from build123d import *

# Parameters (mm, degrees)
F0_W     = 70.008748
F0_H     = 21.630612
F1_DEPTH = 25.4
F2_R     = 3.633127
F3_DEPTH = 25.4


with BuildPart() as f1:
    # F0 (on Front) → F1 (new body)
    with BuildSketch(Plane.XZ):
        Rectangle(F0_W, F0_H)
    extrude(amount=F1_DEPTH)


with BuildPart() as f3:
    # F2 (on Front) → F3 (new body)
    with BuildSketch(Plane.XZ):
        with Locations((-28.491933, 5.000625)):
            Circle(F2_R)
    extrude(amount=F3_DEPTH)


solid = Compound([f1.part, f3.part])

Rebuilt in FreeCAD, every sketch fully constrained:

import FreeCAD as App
import Part
import Sketcher
Q = App.Units.Quantity


def add_polygon(sketch, points):
    """Adds a closed chain of lines whose ends are joined by coincident constraints."""
    first, n = sketch.GeometryCount, len(points)
    for a, b in zip(points, points[1:] + points[:1]):
        sketch.addGeometry(Part.LineSegment(App.Vector(*a, 0), App.Vector(*b, 0)), False)
    for i in range(n):
        sketch.addConstraint(Sketcher.Constraint("Coincident", first + i, 2, first + (i + 1) % n, 1))

doc = App.newDocument("Part")
body = doc.addObject("PartDesign::Body", "Body")

# Sketch on XZ plane
sketch1 = doc.addObject("Sketcher::SketchObject", "Sketch")
body.addObject(sketch1)
sketch1.AttachmentSupport = (doc.XZ_Plane, [""])
sketch1.MapMode = "FlatFace"
add_polygon(sketch1, [(-35, 11), (-35, -11), (35, -11), (35, 11)])  # lines 0-3
sketch1.addConstraint([
    Sketcher.Constraint("Vertical", 0),
    Sketcher.Constraint("Horizontal", 1),
    Sketcher.Constraint("Vertical", 2),
    Sketcher.Constraint("Horizontal", 3),
    Sketcher.Constraint("Symmetric", 0, 2, 2, 2, -1, 1),
    Sketcher.Constraint("DistanceY", 0, 2, 0, 1, 21.630612),
    Sketcher.Constraint("DistanceX", 1, 1, 1, 2, 70.008748),
])
pad1 = doc.addObject("PartDesign::Pad", "Pad")
body.addObject(pad1)
pad1.Profile = sketch1
pad1.Length = Q("1 in")
body2 = doc.addObject("PartDesign::Body", "Body001")

# Sketch on XZ plane
sketch2 = doc.addObject("Sketcher::SketchObject", "Sketch001")
body2.addObject(sketch2)
sketch2.AttachmentSupport = (doc.getObject("XZ_Plane001"), [""])
sketch2.MapMode = "FlatFace"
sketch2.addGeometry(Part.Circle(App.Vector(-28.5, 5, 0), App.Vector(0, 0, 1), 3.6), False)
sketch2.addConstraint([
    Sketcher.Constraint("Diameter", 0, 7.266254),
    Sketcher.Constraint("DistanceX", 0, 3, -1, 1, 28.491933),
    Sketcher.Constraint("DistanceY", -1, 1, 0, 3, 5.000625),
])
pad2 = doc.addObject("PartDesign::Pad", "Pad001")
body2.addObject(pad2)
pad2.Profile = sketch2
pad2.Length = Q("1 in")

doc.recompute()
